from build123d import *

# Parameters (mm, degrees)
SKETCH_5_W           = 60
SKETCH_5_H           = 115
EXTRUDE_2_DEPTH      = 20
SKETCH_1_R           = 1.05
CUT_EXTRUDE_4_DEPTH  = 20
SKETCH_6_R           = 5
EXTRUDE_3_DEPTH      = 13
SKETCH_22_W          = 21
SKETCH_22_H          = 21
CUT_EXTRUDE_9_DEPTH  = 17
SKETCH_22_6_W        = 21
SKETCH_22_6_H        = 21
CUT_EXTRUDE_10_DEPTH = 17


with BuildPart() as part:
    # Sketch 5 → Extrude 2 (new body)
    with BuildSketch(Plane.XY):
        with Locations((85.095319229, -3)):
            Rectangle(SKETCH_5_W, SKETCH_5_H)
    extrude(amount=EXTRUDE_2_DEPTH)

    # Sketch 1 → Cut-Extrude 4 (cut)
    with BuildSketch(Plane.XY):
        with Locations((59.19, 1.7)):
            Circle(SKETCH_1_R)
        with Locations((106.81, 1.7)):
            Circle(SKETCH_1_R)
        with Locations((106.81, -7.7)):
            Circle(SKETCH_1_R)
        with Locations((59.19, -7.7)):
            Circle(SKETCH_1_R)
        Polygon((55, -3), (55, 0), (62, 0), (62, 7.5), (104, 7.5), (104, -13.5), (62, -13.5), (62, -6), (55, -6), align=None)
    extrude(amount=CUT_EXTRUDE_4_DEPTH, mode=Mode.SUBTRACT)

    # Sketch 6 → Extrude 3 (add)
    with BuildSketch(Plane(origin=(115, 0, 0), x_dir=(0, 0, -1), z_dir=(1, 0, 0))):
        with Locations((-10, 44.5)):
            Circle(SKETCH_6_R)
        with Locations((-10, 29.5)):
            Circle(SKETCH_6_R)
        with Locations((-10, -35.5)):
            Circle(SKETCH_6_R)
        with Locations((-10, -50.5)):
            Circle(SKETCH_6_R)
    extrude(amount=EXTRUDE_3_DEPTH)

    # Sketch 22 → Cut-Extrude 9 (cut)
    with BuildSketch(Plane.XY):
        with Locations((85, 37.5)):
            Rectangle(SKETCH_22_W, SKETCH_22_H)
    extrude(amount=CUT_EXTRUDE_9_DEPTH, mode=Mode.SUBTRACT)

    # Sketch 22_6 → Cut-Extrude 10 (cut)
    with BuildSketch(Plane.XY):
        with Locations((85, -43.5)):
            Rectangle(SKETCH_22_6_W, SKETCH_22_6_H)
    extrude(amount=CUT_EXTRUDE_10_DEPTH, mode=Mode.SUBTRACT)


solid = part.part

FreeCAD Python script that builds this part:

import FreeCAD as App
import Part
import Sketcher
from FreeCAD import Vector
Q = App.Units.Quantity

doc = App.newDocument("Part")
body = doc.addObject("PartDesign::Body", "Body")

# Sketch on XY plane
sketch1 = doc.addObject("Sketcher::SketchObject", "Sketch")
body.addObject(sketch1)
sketch1.AttachmentSupport = (doc.XY_Plane, [""])
sketch1.MapMode = "FlatFace"
sketch1.addGeometry([
    Part.LineSegment(Vector(55, 54, 0), Vector(55, -60, 0)),
    Part.LineSegment(Vector(55, -60, 0), Vector(115, -60, 0)),
    Part.LineSegment(Vector(115, -60, 0), Vector(115, 54, 0)),
    Part.LineSegment(Vector(115, 54, 0), Vector(55, 54, 0)),
], False)
sketch1.addConstraint([
    Sketcher.Constraint("Coincident", 0, 2, 1, 1),
    Sketcher.Constraint("Coincident", 1, 2, 2, 1),
    Sketcher.Constraint("Coincident", 2, 2, 3, 1),
    Sketcher.Constraint("Coincident", 3, 2, 0, 1),
    Sketcher.Constraint("Vertical", 0),
    Sketcher.Constraint("Horizontal", 1),
    Sketcher.Constraint("Vertical", 2),
    Sketcher.Constraint("Horizontal", 3),
    Sketcher.Constraint("DistanceX", 1, 1, 1, 2, Q("60 mm")),
    Sketcher.Constraint("DistanceY", 0, 2, 0, 1, Q("115 mm")),
    Sketcher.Constraint("DistanceY", 0, 2, -1, 1, Q("60.5 mm")),
    Sketcher.Constraint("DistanceX", -1, 1, 0, 2, Q("55.095319 mm")),
])
pad1 = doc.addObject("PartDesign::Pad", "Pad")
body.addObject(pad1)
pad1.Profile = sketch1
pad1.Length = 20

# Sketch on XY plane
sketch2 = doc.addObject("Sketcher::SketchObject", "Sketch001")
body.addObject(sketch2)
sketch2.AttachmentSupport = (doc.XY_Plane, [""])
sketch2.MapMode = "FlatFace"
sketch2.addGeometry([
    Part.Circle(Vector(59.2, 1.7, 0), Vector(0, 0, 1), 1.1),  # 0
    Part.Circle(Vector(106.8, 1.7, 0), Vector(0, 0, 1), 1.1),  # 1
    Part.Circle(Vector(106.8, -7.7, 0), Vector(0, 0, 1), 1.1),  # 2
    Part.Circle(Vector(59.2, -7.7, 0), Vector(0, 0, 1), 1.1),  # 3
    Part.LineSegment(Vector(55, 0, 0), Vector(55, -6, 0)),  # 4
    Part.LineSegment(Vector(55, -6, 0), Vector(62, -6, 0)),  # 5
    Part.LineSegment(Vector(62, -6, 0), Vector(62, -13.5, 0)),  # 6
    Part.LineSegment(Vector(62, -13.5, 0), Vector(104, -13.5, 0)),  # 7
    Part.LineSegment(Vector(104, -13.5, 0), Vector(104, 7.5, 0)),  # 8
    Part.LineSegment(Vector(104, 7.5, 0), Vector(62, 7.5, 0)),  # 9
    Part.LineSegment(Vector(62, 7.5, 0), Vector(62, 0, 0)),  # 10
    Part.LineSegment(Vector(62, 0, 0), Vector(55, 0, 0)),  # 11
], False)
sketch2.addConstraint([
    Sketcher.Constraint("Coincident", 4, 2, 5, 1),
    Sketcher.Constraint("Coincident", 5, 2, 6, 1),
    Sketcher.Constraint("Coincident", 6, 2, 7, 1),
    Sketcher.Constraint("Coincident", 7, 2, 8, 1),
    Sketcher.Constraint("Coincident", 8, 2, 9, 1),
    Sketcher.Constraint("Coincident", 9, 2, 10, 1),
    Sketcher.Constraint("Coincident", 10, 2, 11, 1),
    Sketcher.Constraint("Coincident", 11, 2, 4, 1),
    Sketcher.Constraint("Vertical", 4),
    Sketcher.Constraint("Horizontal", 5),
    Sketcher.Constraint("Vertical", 6),
    Sketcher.Constraint("Horizontal", 7),
    Sketcher.Constraint("Vertical", 8),
    Sketcher.Constraint("Horizontal", 9),
    Sketcher.Constraint("Vertical", 10),
    Sketcher.Constraint("Horizontal", 11),
    Sketcher.Constraint("Equal", 0, 1),
    Sketcher.Constraint("Equal", 1, 2),
    Sketcher.Constraint("Equal", 2, 3),
    Sketcher.Constraint("PointOnObject", 10, 2, -1),
    Sketcher.Constraint("Horizontal", 0, 3, 1, 3),
    Sketcher.Constraint("Horizontal", 2, 3, 3, 3),
    Sketcher.Constraint("Vertical", 1, 3, 2, 3),
    Sketcher.Constraint("Vertical", 0, 3, 3, 3),
    Sketcher.Constraint("Vertical", 6, 2, 9, 2),
    Sketcher.Constraint("Equal", 6, 10),
    Sketcher.Constraint("Diameter", 0, Q("2.1 mm")),
    Sketcher.Constraint("DistanceX", 5, 1, 5, 2, Q("7 mm")),
    Sketcher.Constraint("DistanceX", 7, 1, 7, 2, Q("42 mm")),
    Sketcher.Constraint("DistanceY", 4, 2, 4, 1, Q("6 mm")),
    Sketcher.Constraint("DistanceY", 8, 1, 8, 2, Q("21 mm")),
    Sketcher.Constraint("DistanceX", -1, 1, 4, 2, Q("55 mm")),
    Sketcher.Constraint("DistanceY", -1, 1, 0, 3, Q("1.7 mm")),
    Sketcher.Constraint("DistanceY", 2, 3, -1, 1, Q("7.7 mm")),
    Sketcher.Constraint("DistanceX", -1, 1, 0, 3, Q("59.19 mm")),
    Sketcher.Constraint("DistanceX", -1, 1, 1, 3, Q("106.81 mm")),
])
pocket1 = doc.addObject("PartDesign::Pocket", "Pocket")
body.addObject(pocket1)
pocket1.Profile = sketch2
pocket1.Length = 20
pocket1.Reversed = True

# Sketch on YZ plane
sketch3 = doc.addObject("Sketcher::SketchObject", "Sketch002")
body.addObject(sketch3)
sketch3.AttachmentSupport = (doc.YZ_Plane, [""])
sketch3.MapMode = "FlatFace"
sketch3.AttachmentOffset = App.Placement(Vector(0, 0, 115), App.Rotation())
sketch3.addGeometry([
    Part.Circle(Vector(44, 10, 0), Vector(0, 0, 1), 5),
    Part.Circle(Vector(30, 10, 0), Vector(0, 0, 1), 5),
    Part.Circle(Vector(-36, 10, 0), Vector(0, 0, 1), 5),
    Part.Circle(Vector(-50, 10, 0), Vector(0, 0, 1), 5),
], False)
sketch3.addConstraint([
    Sketcher.Constraint("Equal", 0, 1),
    Sketcher.Constraint("Equal", 1, 2),
    Sketcher.Constraint("Equal", 2, 3),
    Sketcher.Constraint("Horizontal", 0, 3, 1, 3),
    Sketcher.Constraint("Horizontal", 1, 3, 2, 3),
    Sketcher.Constraint("Horizontal", 2, 3, 3, 3),
    Sketcher.Constraint("Diameter", 0, Q("10 mm")),
    Sketcher.Constraint("DistanceY", -1, 1, 0, 3, Q("10 mm")),
    Sketcher.Constraint("DistanceX", 1, 3, 0, 3, Q("15 mm")),
    Sketcher.Constraint("DistanceX", 2, 3, 1, 3, Q("65 mm")),
    Sketcher.Constraint("DistanceX", 3, 3, 2, 3, Q("15 mm")),
    Sketcher.Constraint("DistanceX", -1, 1, 0, 3, Q("44.5 mm")),
])
pad2 = doc.addObject("PartDesign::Pad", "Pad001")
body.addObject(pad2)
pad2.Profile = sketch3
pad2.Length = 13

# Sketch on XY plane
sketch4 = doc.addObject("Sketcher::SketchObject", "Sketch003")
body.addObject(sketch4)
sketch4.AttachmentSupport = (doc.XY_Plane, [""])
sketch4.MapMode = "FlatFace"
sketch4.addGeometry([
    Part.LineSegment(Vector(74, 48, 0), Vector(74, 27, 0)),
    Part.LineSegment(Vector(74, 27, 0), Vector(96, 27, 0)),
    Part.LineSegment(Vector(96, 27, 0), Vector(96, 48, 0)),
    Part.LineSegment(Vector(96, 48, 0), Vector(74, 48, 0)),
], False)
sketch4.addConstraint([
    Sketcher.Constraint("Coincident", 0, 2, 1, 1),
    Sketcher.Constraint("Coincident", 1, 2, 2, 1),
    Sketcher.Constraint("Coincident", 2, 2, 3, 1),
    Sketcher.Constraint("Coincident", 3, 2, 0, 1),
    Sketcher.Constraint("Vertical", 0),
    Sketcher.Constraint("Horizontal", 1),
    Sketcher.Constraint("Vertical", 2),
    Sketcher.Constraint("Horizontal", 3),
    Sketcher.Constraint("Equal", 3, 0),
    Sketcher.Constraint("DistanceX", 1, 1, 1, 2, Q("21 mm")),
    Sketcher.Constraint("DistanceY", -1, 1, 0, 2, Q("27 mm")),
    Sketcher.Constraint("DistanceX", -1, 1, 0, 2, Q("74.5 mm")),
])
pocket2 = doc.addObject("PartDesign::Pocket", "Pocket001")
body.addObject(pocket2)
pocket2.Profile = sketch4
pocket2.Length = 17
pocket2.Reversed = True

# Sketch on XY plane
sketch5 = doc.addObject("Sketcher::SketchObject", "Sketch004")
body.addObject(sketch5)
sketch5.AttachmentSupport = (doc.XY_Plane, [""])
sketch5.MapMode = "FlatFace"
sketch5.addGeometry([
    Part.LineSegment(Vector(74, -33, 0), Vector(74, -54, 0)),
    Part.LineSegment(Vector(74, -54, 0), Vector(96, -54, 0)),
    Part.LineSegment(Vector(96, -54, 0), Vector(96, -33, 0)),
    Part.LineSegment(Vector(96, -33, 0), Vector(74, -33, 0)),
], False)
sketch5.addConstraint([
    Sketcher.Constraint("Coincident", 0, 2, 1, 1),
    Sketcher.Constraint("Coincident", 1, 2, 2, 1),
    Sketcher.Constraint("Coincident", 2, 2, 3, 1),
    Sketcher.Constraint("Coincident", 3, 2, 0, 1),
    Sketcher.Constraint("Vertical", 0),
    Sketcher.Constraint("Horizontal", 1),
    Sketcher.Constraint("Vertical", 2),
    Sketcher.Constraint("Horizontal", 3),
    Sketcher.Constraint("Equal", 3, 0),
    Sketcher.Constraint("DistanceX", 1, 1, 1, 2, Q("21 mm")),
    Sketcher.Constraint("DistanceY", 0, 2, -1, 1, Q("54 mm")),
    Sketcher.Constraint("DistanceX", -1, 1, 0, 2, Q("74.5 mm")),
])
pocket3 = doc.addObject("PartDesign::Pocket", "Pocket002")
body.addObject(pocket3)
pocket3.Profile = sketch5
pocket3.Length = 17
pocket3.Reversed = True

doc.recompute()
